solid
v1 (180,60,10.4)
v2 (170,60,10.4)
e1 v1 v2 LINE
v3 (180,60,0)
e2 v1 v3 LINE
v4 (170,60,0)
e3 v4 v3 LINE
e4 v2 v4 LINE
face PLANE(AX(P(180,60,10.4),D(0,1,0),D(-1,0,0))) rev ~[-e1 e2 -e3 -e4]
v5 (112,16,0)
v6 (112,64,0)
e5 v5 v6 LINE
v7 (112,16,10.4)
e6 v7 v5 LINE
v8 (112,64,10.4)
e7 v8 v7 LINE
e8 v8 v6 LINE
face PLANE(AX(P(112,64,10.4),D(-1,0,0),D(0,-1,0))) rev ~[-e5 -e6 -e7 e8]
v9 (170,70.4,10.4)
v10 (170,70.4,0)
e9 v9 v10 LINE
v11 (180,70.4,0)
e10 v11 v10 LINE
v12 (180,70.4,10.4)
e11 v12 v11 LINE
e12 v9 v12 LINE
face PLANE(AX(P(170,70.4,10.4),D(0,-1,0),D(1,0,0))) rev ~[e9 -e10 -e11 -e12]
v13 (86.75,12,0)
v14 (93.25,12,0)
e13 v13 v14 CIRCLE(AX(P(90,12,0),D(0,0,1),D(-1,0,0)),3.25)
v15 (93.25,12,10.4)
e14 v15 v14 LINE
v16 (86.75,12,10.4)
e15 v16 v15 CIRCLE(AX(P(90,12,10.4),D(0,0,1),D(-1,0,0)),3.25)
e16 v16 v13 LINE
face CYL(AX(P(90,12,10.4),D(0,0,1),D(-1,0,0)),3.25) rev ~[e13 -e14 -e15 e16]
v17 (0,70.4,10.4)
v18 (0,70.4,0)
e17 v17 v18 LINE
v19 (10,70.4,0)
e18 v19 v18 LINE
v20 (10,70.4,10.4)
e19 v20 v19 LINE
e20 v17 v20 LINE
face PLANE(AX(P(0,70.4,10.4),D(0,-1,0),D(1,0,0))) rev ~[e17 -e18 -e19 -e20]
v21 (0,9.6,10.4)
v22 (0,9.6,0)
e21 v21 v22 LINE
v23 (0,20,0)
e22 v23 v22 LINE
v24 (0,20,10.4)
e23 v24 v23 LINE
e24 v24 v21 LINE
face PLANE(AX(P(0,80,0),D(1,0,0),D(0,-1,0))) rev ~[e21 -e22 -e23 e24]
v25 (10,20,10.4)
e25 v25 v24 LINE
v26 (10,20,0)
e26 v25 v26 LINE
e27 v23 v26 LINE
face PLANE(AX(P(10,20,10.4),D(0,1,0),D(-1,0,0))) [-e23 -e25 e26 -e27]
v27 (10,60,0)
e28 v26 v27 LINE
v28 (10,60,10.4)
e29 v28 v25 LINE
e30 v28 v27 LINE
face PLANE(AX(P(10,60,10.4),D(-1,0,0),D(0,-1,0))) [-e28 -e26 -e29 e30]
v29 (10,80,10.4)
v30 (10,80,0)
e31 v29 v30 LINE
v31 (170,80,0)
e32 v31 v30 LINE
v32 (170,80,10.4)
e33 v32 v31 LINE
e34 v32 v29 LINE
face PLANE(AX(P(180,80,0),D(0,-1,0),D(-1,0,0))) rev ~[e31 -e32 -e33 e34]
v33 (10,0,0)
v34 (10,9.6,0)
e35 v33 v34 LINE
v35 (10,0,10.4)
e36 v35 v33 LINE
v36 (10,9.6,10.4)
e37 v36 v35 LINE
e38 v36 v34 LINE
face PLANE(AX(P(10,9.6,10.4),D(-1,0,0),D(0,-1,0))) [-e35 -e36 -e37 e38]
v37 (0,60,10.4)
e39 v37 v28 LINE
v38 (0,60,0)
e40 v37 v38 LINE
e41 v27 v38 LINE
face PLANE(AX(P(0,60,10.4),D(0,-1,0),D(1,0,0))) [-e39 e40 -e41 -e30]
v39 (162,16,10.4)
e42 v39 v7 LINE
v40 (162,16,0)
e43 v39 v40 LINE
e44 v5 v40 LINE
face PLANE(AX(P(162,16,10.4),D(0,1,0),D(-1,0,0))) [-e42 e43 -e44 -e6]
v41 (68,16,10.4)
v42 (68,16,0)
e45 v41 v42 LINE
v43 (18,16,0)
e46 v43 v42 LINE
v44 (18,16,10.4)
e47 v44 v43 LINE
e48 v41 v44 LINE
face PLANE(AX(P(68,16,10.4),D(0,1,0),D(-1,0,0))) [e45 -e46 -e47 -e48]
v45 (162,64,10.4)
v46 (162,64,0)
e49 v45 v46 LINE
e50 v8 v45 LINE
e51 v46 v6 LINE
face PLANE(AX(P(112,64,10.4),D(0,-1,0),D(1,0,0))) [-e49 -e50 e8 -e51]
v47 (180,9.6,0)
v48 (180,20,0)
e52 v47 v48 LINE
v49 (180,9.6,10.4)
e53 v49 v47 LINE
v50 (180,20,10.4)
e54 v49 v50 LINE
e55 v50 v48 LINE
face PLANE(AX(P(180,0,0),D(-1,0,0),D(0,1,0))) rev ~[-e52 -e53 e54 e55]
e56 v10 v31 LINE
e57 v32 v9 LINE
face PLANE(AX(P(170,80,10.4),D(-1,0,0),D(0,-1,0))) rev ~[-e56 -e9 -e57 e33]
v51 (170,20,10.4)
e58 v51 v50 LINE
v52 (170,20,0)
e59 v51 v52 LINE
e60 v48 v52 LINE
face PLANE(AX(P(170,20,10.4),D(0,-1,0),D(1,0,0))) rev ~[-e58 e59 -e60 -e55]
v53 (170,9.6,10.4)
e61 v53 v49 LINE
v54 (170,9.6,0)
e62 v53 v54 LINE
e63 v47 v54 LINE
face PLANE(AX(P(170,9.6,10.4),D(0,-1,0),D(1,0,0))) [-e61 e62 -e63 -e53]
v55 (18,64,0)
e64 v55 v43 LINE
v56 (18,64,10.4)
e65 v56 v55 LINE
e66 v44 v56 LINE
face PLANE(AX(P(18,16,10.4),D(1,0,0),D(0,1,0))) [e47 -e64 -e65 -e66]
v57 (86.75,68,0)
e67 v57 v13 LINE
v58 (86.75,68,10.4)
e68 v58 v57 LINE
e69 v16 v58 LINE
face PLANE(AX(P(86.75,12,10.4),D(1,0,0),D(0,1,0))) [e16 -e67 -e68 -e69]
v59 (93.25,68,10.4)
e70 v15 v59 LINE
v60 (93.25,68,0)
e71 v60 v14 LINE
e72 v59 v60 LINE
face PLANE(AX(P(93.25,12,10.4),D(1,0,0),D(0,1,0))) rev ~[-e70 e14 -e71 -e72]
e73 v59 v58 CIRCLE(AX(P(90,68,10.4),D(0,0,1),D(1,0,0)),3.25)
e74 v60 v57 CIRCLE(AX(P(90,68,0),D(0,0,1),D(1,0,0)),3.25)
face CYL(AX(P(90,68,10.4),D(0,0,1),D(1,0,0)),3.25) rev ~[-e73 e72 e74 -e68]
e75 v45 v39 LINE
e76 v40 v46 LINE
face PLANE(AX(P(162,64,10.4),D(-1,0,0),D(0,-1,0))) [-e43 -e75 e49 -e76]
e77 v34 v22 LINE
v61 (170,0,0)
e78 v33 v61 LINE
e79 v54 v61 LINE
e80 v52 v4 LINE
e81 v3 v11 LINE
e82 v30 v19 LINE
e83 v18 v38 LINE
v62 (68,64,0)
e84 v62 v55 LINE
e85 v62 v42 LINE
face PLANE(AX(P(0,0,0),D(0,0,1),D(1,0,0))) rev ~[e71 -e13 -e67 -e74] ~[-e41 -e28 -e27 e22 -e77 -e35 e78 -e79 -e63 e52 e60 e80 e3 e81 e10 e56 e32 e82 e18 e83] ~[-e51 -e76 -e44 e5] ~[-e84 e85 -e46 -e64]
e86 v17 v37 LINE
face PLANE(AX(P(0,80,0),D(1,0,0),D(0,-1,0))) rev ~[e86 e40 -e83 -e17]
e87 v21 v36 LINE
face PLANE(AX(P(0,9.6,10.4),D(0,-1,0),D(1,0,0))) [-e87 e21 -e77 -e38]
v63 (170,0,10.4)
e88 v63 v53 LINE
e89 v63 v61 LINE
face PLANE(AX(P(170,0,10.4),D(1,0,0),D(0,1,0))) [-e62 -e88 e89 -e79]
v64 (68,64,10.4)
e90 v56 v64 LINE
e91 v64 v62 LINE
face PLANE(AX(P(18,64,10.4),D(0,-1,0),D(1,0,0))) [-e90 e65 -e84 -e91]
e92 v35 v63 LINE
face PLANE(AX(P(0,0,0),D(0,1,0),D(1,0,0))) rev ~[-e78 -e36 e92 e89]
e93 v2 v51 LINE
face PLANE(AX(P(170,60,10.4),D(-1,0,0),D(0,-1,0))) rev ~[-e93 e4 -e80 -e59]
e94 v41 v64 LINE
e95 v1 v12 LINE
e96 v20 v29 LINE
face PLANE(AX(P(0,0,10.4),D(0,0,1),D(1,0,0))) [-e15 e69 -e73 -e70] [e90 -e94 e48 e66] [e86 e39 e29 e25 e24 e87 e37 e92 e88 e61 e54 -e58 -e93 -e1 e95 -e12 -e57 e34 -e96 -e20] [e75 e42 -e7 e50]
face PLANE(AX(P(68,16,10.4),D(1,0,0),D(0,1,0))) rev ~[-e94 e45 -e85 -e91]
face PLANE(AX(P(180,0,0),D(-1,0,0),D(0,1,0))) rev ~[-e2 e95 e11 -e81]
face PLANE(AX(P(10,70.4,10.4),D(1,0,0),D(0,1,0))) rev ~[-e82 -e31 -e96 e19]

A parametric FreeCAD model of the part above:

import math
import FreeCAD as App
import Part
import Sketcher
Q = App.Units.Quantity


def add_polygon(sketch, points):
    """Adds a closed chain of lines whose ends are joined by coincident constraints."""
    first, n = sketch.GeometryCount, len(points)
    for a, b in zip(points, points[1:] + points[:1]):
        sketch.addGeometry(Part.LineSegment(App.Vector(*a, 0), App.Vector(*b, 0)), False)
    for i in range(n):
        sketch.addConstraint(Sketcher.Constraint("Coincident", first + i, 2, first + (i + 1) % n, 1))

doc = App.newDocument("Part")
body = doc.addObject("PartDesign::Body", "Body")

# Sketch on XY plane
sketch1 = body.newObject("Sketcher::SketchObject", "Sketch")
sketch1.AttachmentSupport = (doc.getObject("XY_Plane"), [""])
sketch1.MapMode = "FlatFace"
add_polygon(sketch1, [(0, 80), (0, 0), (180, 0), (180, 80)])  # lines 0-3
sketch1.addConstraint([
    Sketcher.Constraint("Vertical", 0),
    Sketcher.Constraint("Horizontal", 1),
    Sketcher.Constraint("Vertical", 2),
    Sketcher.Constraint("Horizontal", 3),
    Sketcher.Constraint("Coincident", 0, 2, -1, 1),
    Sketcher.Constraint("DistanceX", 1, 1, 1, 2, Q("180 mm")),
    Sketcher.Constraint("DistanceY", 0, 2, 0, 1, Q("80 mm")),
])
pad1 = body.newObject("PartDesign::Pad", "Pad")
pad1.Profile = sketch1
pad1.Length = 10.4

# Sketch on XY plane
sketch2 = body.newObject("Sketcher::SketchObject", "Sketch001")
sketch2.AttachmentSupport = (doc.getObject("XY_Plane"), [""])
sketch2.MapMode = "FlatFace"
sketch2.AttachmentOffset = App.Placement(App.Vector(0, 0, 10.4), App.Rotation())
add_polygon(sketch2, [(10, 80), (0, 80), (0, 70.4), (10, 70.4)])  # lines 0-3
add_polygon(sketch2, [(10, 60), (0, 60), (0, 20), (10, 20)])  # lines 4-7
add_polygon(sketch2, [(180, 80), (170, 80), (170, 70.4), (180, 70.4)])  # lines 8-11
add_polygon(sketch2, [(10, 9.6), (0, 9.6), (0, 0), (10, 0)])  # lines 12-15
add_polygon(sketch2, [(180, 20), (180, 60), (170, 60), (170, 20)])  # lines 16-19
add_polygon(sketch2, [(170, 9.6), (170, 0), (180, 0), (180, 9.6)])  # lines 20-23
add_polygon(sketch2, [(162, 16), (162, 64), (112, 64), (112, 16)])  # lines 24-27
add_polygon(sketch2, [(18, 64), (18, 16), (68, 16), (68, 64)])  # lines 28-31
sketch2.addGeometry(Part.ArcOfCircle(Part.Circle(App.Vector(90, 12, 0), App.Vector(0, 0, 1), 3.2), math.radians(180), math.radians(360)), False)  # 32
sketch2.addGeometry(Part.LineSegment(App.Vector(93.2, 12, 0), App.Vector(93.2, 68, 0)), False)  # 33
sketch2.addGeometry(Part.ArcOfCircle(Part.Circle(App.Vector(90, 68, 0), App.Vector(0, 0, 1), 3.2), math.radians(0), math.radians(180)), False)  # 34
sketch2.addGeometry(Part.LineSegment(App.Vector(86.8, 68, 0), App.Vector(86.8, 12, 0)), False)  # 35
sketch2.addConstraint([
    Sketcher.Constraint("Tangent", 32, 2, 33, 1),
    Sketcher.Constraint("Tangent", 33, 2, 34, 1),
    Sketcher.Constraint("Tangent", 34, 2, 35, 1),
    Sketcher.Constraint("Tangent", 35, 2, 32, 1),
    Sketcher.Constraint("Horizontal", 0),
    Sketcher.Constraint("Vertical", 1),
    Sketcher.Constraint("Horizontal", 2),
    Sketcher.Constraint("Vertical", 3),
    Sketcher.Constraint("Horizontal", 4),
    Sketcher.Constraint("Vertical", 5),
    Sketcher.Constraint("Horizontal", 6),
    Sketcher.Constraint("Vertical", 7),
    Sketcher.Constraint("Horizontal", 8),
    Sketcher.Constraint("Vertical", 9),
    Sketcher.Constraint("Horizontal", 10),
    Sketcher.Constraint("Vertical", 11),
    Sketcher.Constraint("Horizontal", 12),
    Sketcher.Constraint("Vertical", 13),
    Sketcher.Constraint("Horizontal", 14),
    Sketcher.Constraint("Vertical", 15),
    Sketcher.Constraint("Vertical", 16),
    Sketcher.Constraint("Horizontal", 17),
    Sketcher.Constraint("Vertical", 18),
    Sketcher.Constraint("Horizontal", 19),
    Sketcher.Constraint("Vertical", 20),
    Sketcher.Constraint("Horizontal", 21),
    Sketcher.Constraint("Vertical", 22),
    Sketcher.Constraint("Horizontal", 23),
    Sketcher.Constraint("Vertical", 24),
    Sketcher.Constraint("Horizontal", 25),
    Sketcher.Constraint("Vertical", 26),
    Sketcher.Constraint("Horizontal", 27),
    Sketcher.Constraint("Vertical", 28),
    Sketcher.Constraint("Horizontal", 29),
    Sketcher.Constraint("Vertical", 30),
    Sketcher.Constraint("Horizontal", 31),
    Sketcher.Constraint("Vertical", 33),
    Sketcher.Constraint("Vertical", 35),
    Sketcher.Constraint("Coincident", 13, 2, -1, 1),
    Sketcher.Constraint("PointOnObject", 0, 2, -2),
    Sketcher.Constraint("PointOnObject", 4, 2, -2),
    Sketcher.Constraint("PointOnObject", 20, 2, -1),
    Sketcher.Constraint("Horizontal", 3, 2, 8, 2),
    Sketcher.Constraint("Horizontal", 2, 2, 9, 2),
    Sketcher.Constraint("Horizontal", 7, 2, 16, 2),
    Sketcher.Constraint("Horizontal", 6, 2, 18, 2),
    Sketcher.Constraint("Horizontal", 15, 2, 22, 2),
    Sketcher.Constraint("Horizontal", 27, 2, 28, 2),
    Sketcher.Constraint("Horizontal", 25, 2, 30, 2),
    Sketcher.Constraint("Vertical", 3, 2, 6, 2),
    Sketcher.Constraint("Vertical", 7, 2, 14, 2),
    Sketcher.Constraint("Vertical", 11, 2, 16, 2),
    Sketcher.Constraint("Vertical", 9, 2, 17, 2),
    Sketcher.Constraint("Vertical", 18, 2, 20, 2),
    Sketcher.Constraint("Vertical", 19, 2, 21, 2),
    Sketcher.Constraint("Equal", 6, 8),
    Sketcher.Constraint("Equal", 27, 29),
    Sketcher.Constraint("Equal", 11, 13),
    Sketcher.Constraint("DistanceX", 0, 2, 0, 1, Q("10 mm")),
    Sketcher.Constraint("DistanceX", 25, 2, 25, 1, Q("50 mm")),
    Sketcher.Constraint("DistanceY", 5, 2, 5, 1, Q("40 mm")),
    Sketcher.Constraint("Radius", 32, Q("3.25 mm")),
    Sketcher.Constraint("DistanceY", 1, 2, 1, 1, Q("9.6 mm")),
    Sketcher.Constraint("DistanceY", -1, 1, 32, 3, Q("12 mm")),
    Sketcher.Constraint("DistanceY", -1, 1, 26, 2, Q("16 mm")),
    Sketcher.Constraint("DistanceY", 34, 3, 0, 2, Q("12 mm")),
    Sketcher.Constraint("DistanceY", 4, 2, 34, 3, Q("8 mm")),
    Sketcher.Constraint("DistanceX", 24, 2, 17, 2, Q("8 mm")),
    Sketcher.Constraint("DistanceY", 24, 2, 8, 2, Q("16 mm")),
    Sketcher.Constraint("DistanceX", 6, 2, 28, 2, Q("8 mm")),
    Sketcher.Constraint("DistanceY", 12, 2, 5, 2, Q("10.4 mm")),
    Sketcher.Constraint("DistanceX", 32, 2, 26, 2, Q("18.75 mm")),
    Sketcher.Constraint("DistanceX", 30, 2, 34, 2, Q("18.75 mm")),
])
pocket1 = body.newObject("PartDesign::Pocket", "Pocket")
pocket1.Profile = sketch2
pocket1.Type = "UpToFirst"

doc.recompute()
